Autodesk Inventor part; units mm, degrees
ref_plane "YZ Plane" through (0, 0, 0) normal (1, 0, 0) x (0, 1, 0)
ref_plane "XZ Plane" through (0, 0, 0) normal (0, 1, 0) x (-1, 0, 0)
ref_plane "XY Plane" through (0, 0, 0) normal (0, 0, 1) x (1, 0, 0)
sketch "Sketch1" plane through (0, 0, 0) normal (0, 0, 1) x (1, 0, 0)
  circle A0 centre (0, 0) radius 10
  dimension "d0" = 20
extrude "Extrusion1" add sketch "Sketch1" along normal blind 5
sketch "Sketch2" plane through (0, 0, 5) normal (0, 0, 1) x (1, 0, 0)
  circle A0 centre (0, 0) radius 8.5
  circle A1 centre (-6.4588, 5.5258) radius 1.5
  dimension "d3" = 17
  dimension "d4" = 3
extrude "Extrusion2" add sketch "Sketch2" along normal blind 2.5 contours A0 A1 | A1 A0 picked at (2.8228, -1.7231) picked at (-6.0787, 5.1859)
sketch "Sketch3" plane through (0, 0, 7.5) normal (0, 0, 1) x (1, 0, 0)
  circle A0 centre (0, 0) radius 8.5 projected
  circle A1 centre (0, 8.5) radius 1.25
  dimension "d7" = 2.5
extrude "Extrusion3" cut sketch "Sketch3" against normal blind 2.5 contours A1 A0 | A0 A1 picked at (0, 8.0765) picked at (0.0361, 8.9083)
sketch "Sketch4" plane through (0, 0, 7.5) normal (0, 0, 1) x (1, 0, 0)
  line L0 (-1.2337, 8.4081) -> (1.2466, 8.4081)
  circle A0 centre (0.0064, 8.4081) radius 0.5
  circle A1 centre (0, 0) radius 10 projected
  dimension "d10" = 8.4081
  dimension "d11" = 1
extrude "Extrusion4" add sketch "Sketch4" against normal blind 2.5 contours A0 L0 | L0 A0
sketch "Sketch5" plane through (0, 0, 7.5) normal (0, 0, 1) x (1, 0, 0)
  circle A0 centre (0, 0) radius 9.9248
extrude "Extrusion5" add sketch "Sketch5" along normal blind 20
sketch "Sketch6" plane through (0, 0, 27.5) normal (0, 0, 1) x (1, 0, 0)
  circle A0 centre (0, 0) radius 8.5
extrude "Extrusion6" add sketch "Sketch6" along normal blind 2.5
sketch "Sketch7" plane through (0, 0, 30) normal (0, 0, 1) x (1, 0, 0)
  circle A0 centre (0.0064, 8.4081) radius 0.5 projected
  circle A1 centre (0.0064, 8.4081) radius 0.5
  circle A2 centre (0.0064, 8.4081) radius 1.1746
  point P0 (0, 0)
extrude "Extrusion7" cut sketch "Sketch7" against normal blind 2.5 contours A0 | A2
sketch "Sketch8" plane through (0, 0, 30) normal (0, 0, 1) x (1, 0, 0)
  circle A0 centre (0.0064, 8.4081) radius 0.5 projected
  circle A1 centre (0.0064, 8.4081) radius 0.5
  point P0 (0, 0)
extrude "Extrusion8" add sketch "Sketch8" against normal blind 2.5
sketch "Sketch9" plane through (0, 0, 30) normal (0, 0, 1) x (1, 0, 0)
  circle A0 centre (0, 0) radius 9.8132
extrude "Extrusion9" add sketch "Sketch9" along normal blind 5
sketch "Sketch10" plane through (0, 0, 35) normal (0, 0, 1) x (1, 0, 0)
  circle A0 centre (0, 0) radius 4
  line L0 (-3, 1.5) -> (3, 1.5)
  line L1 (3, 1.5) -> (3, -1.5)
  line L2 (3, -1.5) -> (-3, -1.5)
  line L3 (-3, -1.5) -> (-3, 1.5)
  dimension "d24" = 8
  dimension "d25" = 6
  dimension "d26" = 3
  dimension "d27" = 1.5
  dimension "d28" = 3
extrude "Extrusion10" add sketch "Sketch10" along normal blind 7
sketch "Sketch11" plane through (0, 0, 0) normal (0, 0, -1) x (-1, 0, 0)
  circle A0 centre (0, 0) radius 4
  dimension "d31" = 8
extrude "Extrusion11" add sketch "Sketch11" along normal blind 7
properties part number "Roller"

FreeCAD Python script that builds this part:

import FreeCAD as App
import Part
import Sketcher

V = App.Vector

doc = App.newDocument("Part")
params = doc.addObject("Spreadsheet::Sheet", "Params")
for row, (alias, value) in enumerate([
    ("sketch1_diameter", "20 mm"),
    ("pad1_length", "5 mm"),
    ("sketch2_diameter", "17 mm"),
    ("pad2_length", "2.5 mm"),
    ("sketch3_diameter", "2.5 mm"),
    ("pocket1_length", "2.5 mm"),
    ("sketch4_diameter", "1 mm"),
    ("pad3_length", "2.5 mm"),
    ("pad4_length", "20 mm"),
    ("sketch6_diameter", "17 mm"),
    ("pad5_length", "2.5 mm"),
    ("pocket2_length", "2.5 mm"),
    ("sketch8_diameter", "1 mm"),
    ("pad6_length", "2.5 mm"),
    ("pad7_length", "5 mm"),
    ("sketch10_diameter", "8 mm"),
    ("sketch10_width", "6 mm"),
    ("sketch10_height", "3 mm"),
    ("pad8_length", "7 mm"),
    ("sketch11_diameter", "8 mm"),
    ("pad9_length", "7 mm"),
], start=1):
    params.set(f"A{row}", alias)
    params.set(f"B{row}", "=" + value)
    params.setAlias(f"B{row}", alias)

body = doc.addObject("PartDesign::Body", "Body")

sketch1 = body.newObject("Sketcher::SketchObject", "Sketch")
sketch1.AttachmentSupport = (doc.getObject("XY_Plane"), [""])
sketch1.MapMode = "FlatFace"
sketch1.addGeometry(Part.Circle(V(0, 0, 0), V(0, 0, 1), 10), False)
sketch1.addConstraint(Sketcher.Constraint("Coincident", 0, 3, -1, 1))
sketch1.addConstraint(Sketcher.Constraint("Diameter", 0, 20.0))
sketch1.setExpression("Constraints[1]", "Params.sketch1_diameter")
pad1 = body.newObject("PartDesign::Pad", "Pad")
pad1.Profile = sketch1
pad1.setExpression("Length", "Params.pad1_length")

sketch2 = body.newObject("Sketcher::SketchObject", "Sketch001")
sketch2.AttachmentSupport = (doc.getObject("XY_Plane"), [""])
sketch2.MapMode = "FlatFace"
sketch2.AttachmentOffset = App.Placement(V(0, 0, 5), App.Rotation())
sketch2.addGeometry(Part.Circle(V(0, 0, 0), V(0, 0, 1), 8.5), False)
sketch2.addConstraint(Sketcher.Constraint("Coincident", 0, 3, -1, 1))
sketch2.addConstraint(Sketcher.Constraint("Diameter", 0, 17.0))
sketch2.setExpression("Constraints[1]", "Params.sketch2_diameter")
pad2 = body.newObject("PartDesign::Pad", "Pad001")
pad2.Profile = sketch2
pad2.setExpression("Length", "Params.pad2_length")

sketch3 = body.newObject("Sketcher::SketchObject", "Sketch002")
sketch3.AttachmentSupport = (doc.getObject("XY_Plane"), [""])
sketch3.MapMode = "FlatFace"
sketch3.AttachmentOffset = App.Placement(V(0, 0, 7.5), App.Rotation())
sketch3.addGeometry(Part.Circle(V(0, 8.5, 0), V(0, 0, 1), 1.25), False)
sketch3.addConstraint(Sketcher.Constraint("PointOnObject", 0, 3, -2))
sketch3.addConstraint(Sketcher.Constraint("Diameter", 0, 2.5))
sketch3.addConstraint(Sketcher.Constraint("DistanceY", -1, 1, 0, 3, 8.5))
sketch3.setExpression("Constraints[1]", "Params.sketch3_diameter")
pocket1 = body.newObject("PartDesign::Pocket", "Pocket")
pocket1.Profile = sketch3
pocket1.setExpression("Length", "Params.pocket1_length")

sketch4 = body.newObject("Sketcher::SketchObject", "Sketch003")
sketch4.AttachmentSupport = (doc.getObject("XY_Plane"), [""])
sketch4.MapMode = "FlatFace"
sketch4.AttachmentOffset = App.Placement(V(0, 0, 7.5), App.Rotation())
sketch4.addGeometry(Part.Circle(V(0.0064, 8.4081, 0), V(0, 0, 1), 0.5), False)
sketch4.addConstraint(Sketcher.Constraint("Diameter", 0, 1.0))
sketch4.addConstraint(Sketcher.Constraint("DistanceY", -1, 1, 0, 3, 8.408))
sketch4.addConstraint(Sketcher.Constraint("DistanceX", -1, 1, 0, 3, 0.0064))
sketch4.setExpression("Constraints[0]", "Params.sketch4_diameter")
pad3 = body.newObject("PartDesign::Pad", "Pad002")
pad3.Profile = sketch4
pad3.setExpression("Length", "Params.pad3_length")
pad3.Reversed = True

sketch5 = body.newObject("Sketcher::SketchObject", "Sketch004")
sketch5.AttachmentSupport = (doc.getObject("XY_Plane"), [""])
sketch5.MapMode = "FlatFace"
sketch5.AttachmentOffset = App.Placement(V(0, 0, 7.5), App.Rotation())
sketch5.addGeometry(Part.Circle(V(0, 0, 0), V(0, 0, 1), 9.9248), False)
sketch5.addConstraint(Sketcher.Constraint("Coincident", 0, 3, -1, 1))
sketch5.addConstraint(Sketcher.Constraint("Diameter", 0, 19.8496))
pad4 = body.newObject("PartDesign::Pad", "Pad003")
pad4.Profile = sketch5
pad4.setExpression("Length", "Params.pad4_length")

sketch6 = body.newObject("Sketcher::SketchObject", "Sketch005")
sketch6.AttachmentSupport = (doc.getObject("XY_Plane"), [""])
sketch6.MapMode = "FlatFace"
sketch6.AttachmentOffset = App.Placement(V(0, 0, 27.5), App.Rotation())
sketch6.addGeometry(Part.Circle(V(0, 0, 0), V(0, 0, 1), 8.5), False)
sketch6.addConstraint(Sketcher.Constraint("Coincident", 0, 3, -1, 1))
sketch6.addConstraint(Sketcher.Constraint("Diameter", 0, 17.0))
sketch6.setExpression("Constraints[1]", "Params.sketch6_diameter")
pad5 = body.newObject("PartDesign::Pad", "Pad004")
pad5.Profile = sketch6
pad5.setExpression("Length", "Params.pad5_length")

sketch7 = body.newObject("Sketcher::SketchObject", "Sketch006")
sketch7.AttachmentSupport = (doc.getObject("XY_Plane"), [""])
sketch7.MapMode = "FlatFace"
sketch7.AttachmentOffset = App.Placement(V(0, 0, 30), App.Rotation())
sketch7.addGeometry(Part.Circle(V(0.0064, 8.4081, 0), V(0, 0, 1), 1.1746), False)
sketch7.addConstraint(Sketcher.Constraint("Diameter", 0, 2.3492))
sketch7.addConstraint(Sketcher.Constraint("DistanceY", -1, 1, 0, 3, 8.408))
sketch7.addConstraint(Sketcher.Constraint("DistanceX", -1, 1, 0, 3, 0.0064))
pocket2 = body.newObject("PartDesign::Pocket", "Pocket001")
pocket2.Profile = sketch7
pocket2.setExpression("Length", "Params.pocket2_length")

sketch8 = body.newObject("Sketcher::SketchObject", "Sketch007")
sketch8.AttachmentSupport = (doc.getObject("XY_Plane"), [""])
sketch8.MapMode = "FlatFace"
sketch8.AttachmentOffset = App.Placement(V(0, 0, 30), App.Rotation())
sketch8.addGeometry(Part.Circle(V(0.0064, 8.4081, 0), V(0, 0, 1), 0.5), False)
sketch8.addConstraint(Sketcher.Constraint("Diameter", 0, 1.0))
sketch8.addConstraint(Sketcher.Constraint("DistanceY", -1, 1, 0, 3, 8.408))
sketch8.addConstraint(Sketcher.Constraint("DistanceX", -1, 1, 0, 3, 0.0064))
sketch8.setExpression("Constraints[0]", "Params.sketch8_diameter")
pad6 = body.newObject("PartDesign::Pad", "Pad005")
pad6.Profile = sketch8
pad6.setExpression("Length", "Params.pad6_length")
pad6.Reversed = True

sketch9 = body.newObject("Sketcher::SketchObject", "Sketch008")
sketch9.AttachmentSupport = (doc.getObject("XY_Plane"), [""])
sketch9.MapMode = "FlatFace"
sketch9.AttachmentOffset = App.Placement(V(0, 0, 30), App.Rotation())
sketch9.addGeometry(Part.Circle(V(0, 0, 0), V(0, 0, 1), 9.8132), False)
sketch9.addConstraint(Sketcher.Constraint("Coincident", 0, 3, -1, 1))
sketch9.addConstraint(Sketcher.Constraint("Diameter", 0, 19.6264))
pad7 = body.newObject("PartDesign::Pad", "Pad006")
pad7.Profile = sketch9
pad7.setExpression("Length", "Params.pad7_length")

sketch10 = body.newObject("Sketcher::SketchObject", "Sketch009")
sketch10.AttachmentSupport = (doc.getObject("XY_Plane"), [""])
sketch10.MapMode = "FlatFace"
sketch10.AttachmentOffset = App.Placement(V(0, 0, 35), App.Rotation())
sketch10.addGeometry(Part.Circle(V(0, 0, 0), V(0, 0, 1), 4), False)
sketch10.addGeometry(Part.LineSegment(V(-3, -1.5, 0), V(-3, 1.5, 0)), False)
sketch10.addGeometry(Part.LineSegment(V(-3, 1.5, 0), V(3, 1.5, 0)), False)
sketch10.addGeometry(Part.LineSegment(V(3, 1.5, 0), V(3, -1.5, 0)), False)
sketch10.addGeometry(Part.LineSegment(V(3, -1.5, 0), V(-3, -1.5, 0)), False)
sketch10.addConstraint(Sketcher.Constraint("Coincident", 1, 2, 2, 1))
sketch10.addConstraint(Sketcher.Constraint("Coincident", 2, 2, 3, 1))
sketch10.addConstraint(Sketcher.Constraint("Coincident", 3, 2, 4, 1))
sketch10.addConstraint(Sketcher.Constraint("Coincident", 4, 2, 1, 1))
sketch10.addConstraint(Sketcher.Constraint("Vertical", 1))
sketch10.addConstraint(Sketcher.Constraint("Horizontal", 2))
sketch10.addConstraint(Sketcher.Constraint("Vertical", 3))
sketch10.addConstraint(Sketcher.Constraint("Horizontal", 4))
sketch10.addConstraint(Sketcher.Constraint("Coincident", 0, 3, -1, 1))
sketch10.addConstraint(Sketcher.Constraint("Symmetric", 1, 2, 3, 2, -1, 1))
sketch10.addConstraint(Sketcher.Constraint("Diameter", 0, 8.0))
sketch10.addConstraint(Sketcher.Constraint("DistanceX", 2, 1, 2, 2, 6.0))
sketch10.addConstraint(Sketcher.Constraint("DistanceY", 1, 1, 1, 2, 3.0))
sketch10.setExpression("Constraints[10]", "Params.sketch10_diameter")
sketch10.setExpression("Constraints[11]", "Params.sketch10_width")
sketch10.setExpression("Constraints[12]", "Params.sketch10_height")
pad8 = body.newObject("PartDesign::Pad", "Pad007")
pad8.Profile = sketch10
pad8.setExpression("Length", "Params.pad8_length")

sketch11 = body.newObject("Sketcher::SketchObject", "Sketch010")
sketch11.AttachmentSupport = (doc.getObject("XY_Plane"), [""])
sketch11.MapMode = "FlatFace"
sketch11.addGeometry(Part.Circle(V(0, 0, 0), V(0, 0, 1), 4), False)
sketch11.addConstraint(Sketcher.Constraint("Coincident", 0, 3, -1, 1))
sketch11.addConstraint(Sketcher.Constraint("Diameter", 0, 8.0))
sketch11.setExpression("Constraints[1]", "Params.sketch11_diameter")
pad9 = body.newObject("PartDesign::Pad", "Pad008")
pad9.Profile = sketch11
pad9.setExpression("Length", "Params.pad9_length")
pad9.Reversed = True

doc.recompute()
